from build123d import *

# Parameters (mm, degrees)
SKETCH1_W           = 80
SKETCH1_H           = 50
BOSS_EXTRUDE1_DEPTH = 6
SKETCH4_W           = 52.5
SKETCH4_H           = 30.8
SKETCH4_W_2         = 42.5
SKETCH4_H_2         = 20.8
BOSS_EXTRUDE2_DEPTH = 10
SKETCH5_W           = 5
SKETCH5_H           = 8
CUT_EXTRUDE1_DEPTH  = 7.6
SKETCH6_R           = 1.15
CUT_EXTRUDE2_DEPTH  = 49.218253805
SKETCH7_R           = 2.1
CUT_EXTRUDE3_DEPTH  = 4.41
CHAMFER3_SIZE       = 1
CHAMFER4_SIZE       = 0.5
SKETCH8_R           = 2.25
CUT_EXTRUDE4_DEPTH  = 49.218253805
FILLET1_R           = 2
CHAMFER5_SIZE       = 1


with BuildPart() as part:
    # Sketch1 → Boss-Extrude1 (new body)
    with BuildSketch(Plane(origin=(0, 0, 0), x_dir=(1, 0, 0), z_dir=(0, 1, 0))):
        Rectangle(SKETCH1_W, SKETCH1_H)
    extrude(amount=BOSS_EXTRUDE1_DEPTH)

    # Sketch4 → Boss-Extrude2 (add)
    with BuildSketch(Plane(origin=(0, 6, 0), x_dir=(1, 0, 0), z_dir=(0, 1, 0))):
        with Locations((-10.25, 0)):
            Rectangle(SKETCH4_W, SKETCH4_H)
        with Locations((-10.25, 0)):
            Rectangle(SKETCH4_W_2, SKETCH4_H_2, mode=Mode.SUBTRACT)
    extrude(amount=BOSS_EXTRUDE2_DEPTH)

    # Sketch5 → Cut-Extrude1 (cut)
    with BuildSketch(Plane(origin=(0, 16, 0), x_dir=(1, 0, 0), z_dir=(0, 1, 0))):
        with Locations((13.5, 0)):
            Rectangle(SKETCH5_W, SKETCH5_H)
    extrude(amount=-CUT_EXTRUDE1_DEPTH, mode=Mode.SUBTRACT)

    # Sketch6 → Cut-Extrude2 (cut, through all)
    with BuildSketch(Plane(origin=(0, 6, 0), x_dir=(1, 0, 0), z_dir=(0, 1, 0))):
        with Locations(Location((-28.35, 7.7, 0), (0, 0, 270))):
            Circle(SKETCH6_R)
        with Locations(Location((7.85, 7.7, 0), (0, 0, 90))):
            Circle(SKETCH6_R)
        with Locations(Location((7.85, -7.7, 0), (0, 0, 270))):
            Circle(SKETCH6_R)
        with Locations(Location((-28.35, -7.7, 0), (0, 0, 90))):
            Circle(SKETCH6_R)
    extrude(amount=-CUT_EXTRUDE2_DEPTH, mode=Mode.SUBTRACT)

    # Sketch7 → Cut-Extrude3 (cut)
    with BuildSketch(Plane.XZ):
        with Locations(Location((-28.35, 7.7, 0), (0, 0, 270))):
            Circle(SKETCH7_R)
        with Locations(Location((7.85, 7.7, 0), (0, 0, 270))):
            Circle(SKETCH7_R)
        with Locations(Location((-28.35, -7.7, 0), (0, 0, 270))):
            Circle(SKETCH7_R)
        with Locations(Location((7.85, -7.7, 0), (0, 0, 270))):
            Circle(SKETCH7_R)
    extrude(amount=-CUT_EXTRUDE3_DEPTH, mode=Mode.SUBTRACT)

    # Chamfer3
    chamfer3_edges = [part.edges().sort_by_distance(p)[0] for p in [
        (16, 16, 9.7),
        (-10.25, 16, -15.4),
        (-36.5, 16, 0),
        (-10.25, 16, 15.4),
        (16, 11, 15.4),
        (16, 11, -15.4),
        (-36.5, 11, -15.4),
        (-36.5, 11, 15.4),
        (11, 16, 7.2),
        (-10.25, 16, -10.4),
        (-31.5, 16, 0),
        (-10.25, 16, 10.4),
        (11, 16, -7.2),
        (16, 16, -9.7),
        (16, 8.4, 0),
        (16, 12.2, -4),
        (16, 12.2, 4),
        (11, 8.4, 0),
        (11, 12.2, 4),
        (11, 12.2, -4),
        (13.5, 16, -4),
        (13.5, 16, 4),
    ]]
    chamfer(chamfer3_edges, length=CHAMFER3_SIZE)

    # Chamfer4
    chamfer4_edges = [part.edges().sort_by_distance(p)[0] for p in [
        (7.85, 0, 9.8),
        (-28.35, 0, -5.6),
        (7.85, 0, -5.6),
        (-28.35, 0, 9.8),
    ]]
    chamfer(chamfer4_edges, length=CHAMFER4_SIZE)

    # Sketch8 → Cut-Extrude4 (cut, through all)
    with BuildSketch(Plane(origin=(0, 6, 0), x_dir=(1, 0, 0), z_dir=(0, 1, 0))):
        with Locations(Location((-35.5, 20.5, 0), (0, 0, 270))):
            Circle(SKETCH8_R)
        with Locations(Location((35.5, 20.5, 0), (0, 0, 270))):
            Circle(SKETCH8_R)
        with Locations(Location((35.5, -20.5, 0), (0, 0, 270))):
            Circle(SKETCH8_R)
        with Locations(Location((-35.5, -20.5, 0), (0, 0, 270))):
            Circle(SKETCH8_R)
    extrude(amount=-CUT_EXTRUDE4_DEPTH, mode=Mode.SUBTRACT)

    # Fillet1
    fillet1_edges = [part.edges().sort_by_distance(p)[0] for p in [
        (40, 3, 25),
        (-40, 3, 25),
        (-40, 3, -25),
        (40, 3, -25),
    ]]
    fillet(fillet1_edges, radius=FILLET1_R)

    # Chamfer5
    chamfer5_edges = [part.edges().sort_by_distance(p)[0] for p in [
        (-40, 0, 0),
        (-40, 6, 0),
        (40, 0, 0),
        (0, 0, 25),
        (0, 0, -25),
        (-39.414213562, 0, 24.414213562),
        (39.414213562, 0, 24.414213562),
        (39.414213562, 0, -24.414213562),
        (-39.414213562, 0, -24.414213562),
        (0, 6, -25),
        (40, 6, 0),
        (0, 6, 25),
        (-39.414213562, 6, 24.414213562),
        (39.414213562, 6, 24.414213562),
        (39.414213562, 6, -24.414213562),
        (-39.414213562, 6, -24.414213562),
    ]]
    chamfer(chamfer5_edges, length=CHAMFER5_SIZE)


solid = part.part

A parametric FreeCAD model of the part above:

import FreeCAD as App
import Part
import Sketcher

V = App.Vector
Q = App.Units.Quantity


def edges_at(feature, points):
    """Names of the edges that pass closest to the given points."""
    edges = feature.Shape.Edges
    near = lambda p: min(range(len(edges)), key=lambda i: edges[i].distToShape(Part.Vertex(*p))[0])
    return sorted({f"Edge{near(p) + 1}" for p in points})


def add_polygon(sketch, points):
    """Adds a closed chain of lines whose ends are joined by coincident constraints."""
    first, n = sketch.GeometryCount, len(points)
    for a, b in zip(points, points[1:] + points[:1]):
        sketch.addGeometry(Part.LineSegment(App.Vector(*a, 0), App.Vector(*b, 0)), False)
    for i in range(n):
        sketch.addConstraint(Sketcher.Constraint("Coincident", first + i, 2, first + (i + 1) % n, 1))

doc = App.newDocument("Part")
body = doc.addObject("PartDesign::Body", "Body")

# Sketch on XZ plane
sketch1 = body.newObject("Sketcher::SketchObject", "Sketch")
sketch1.AttachmentSupport = (doc.getObject("XZ_Plane"), [""])
sketch1.MapMode = "FlatFace"
add_polygon(sketch1, [(-40, -25), (-40, 25), (40, 25), (40, -25)])  # lines 0-3
sketch1.addConstraint([
    Sketcher.Constraint("Vertical", 0),
    Sketcher.Constraint("Horizontal", 1),
    Sketcher.Constraint("Vertical", 2),
    Sketcher.Constraint("Horizontal", 3),
    Sketcher.Constraint("Symmetric", 0, 2, 2, 2, -1, 1),
    Sketcher.Constraint("DistanceX", 1, 1, 1, 2, Q("80 mm")),
    Sketcher.Constraint("DistanceY", 0, 1, 0, 2, Q("50 mm")),
])
pad1 = body.newObject("PartDesign::Pad", "Pad")
pad1.Profile = sketch1
pad1.Length = 6
pad1.Reversed = True

# Sketch on XZ plane
sketch2 = body.newObject("Sketcher::SketchObject", "Sketch001")
sketch2.AttachmentSupport = (doc.getObject("XZ_Plane"), [""])
sketch2.MapMode = "FlatFace"
sketch2.AttachmentOffset = App.Placement(V(0, 0, -6), App.Rotation())
add_polygon(sketch2, [(-36.5, -15.4), (-36.5, 15.4), (16, 15.4), (16, -15.4)])  # lines 0-3
add_polygon(sketch2, [(11, 10.4), (-31.5, 10.4), (-31.5, -10.4), (11, -10.4)])  # lines 4-7
sketch2.addConstraint([
    Sketcher.Constraint("Vertical", 0),
    Sketcher.Constraint("Horizontal", 1),
    Sketcher.Constraint("Vertical", 2),
    Sketcher.Constraint("Horizontal", 3),
    Sketcher.Constraint("Horizontal", 4),
    Sketcher.Constraint("Vertical", 5),
    Sketcher.Constraint("Horizontal", 6),
    Sketcher.Constraint("Vertical", 7),
    Sketcher.Constraint("DistanceX", 1, 1, 1, 2, Q("52.5 mm")),
    Sketcher.Constraint("DistanceX", 4, 2, 4, 1, Q("42.5 mm")),
    Sketcher.Constraint("DistanceY", 0, 1, 0, 2, Q("30.8 mm")),
    Sketcher.Constraint("DistanceY", 5, 2, 5, 1, Q("20.8 mm")),
    Sketcher.Constraint("DistanceX", -1, 1, 1, 2, Q("16 mm")),
    Sketcher.Constraint("DistanceX", -1, 1, 6, 2, Q("11 mm")),
    Sketcher.Constraint("DistanceY", 4, 2, 0, 2, Q("5 mm")),
    Sketcher.Constraint("DistanceY", -1, 1, 0, 2, Q("15.4 mm")),
])
pad2 = body.newObject("PartDesign::Pad", "Pad001")
pad2.Profile = sketch2
pad2.Length = 10
pad2.Reversed = True

# Sketch on XZ plane
sketch3 = body.newObject("Sketcher::SketchObject", "Sketch002")
sketch3.AttachmentSupport = (doc.getObject("XZ_Plane"), [""])
sketch3.MapMode = "FlatFace"
sketch3.AttachmentOffset = App.Placement(V(0, 0, -16), App.Rotation())
add_polygon(sketch3, [(11, -4), (11, 4), (16, 4), (16, -4)])  # lines 0-3
sketch3.addConstraint([
    Sketcher.Constraint("Vertical", 0),
    Sketcher.Constraint("Horizontal", 1),
    Sketcher.Constraint("Vertical", 2),
    Sketcher.Constraint("Horizontal", 3),
    Sketcher.Constraint("DistanceX", 1, 1, 1, 2, Q("5 mm")),
    Sketcher.Constraint("DistanceY", 0, 1, 0, 2, Q("8 mm")),
    Sketcher.Constraint("DistanceX", -1, 1, 0, 2, Q("11 mm")),
    Sketcher.Constraint("DistanceY", -1, 1, 0, 2, Q("4 mm")),
])
pocket1 = body.newObject("PartDesign::Pocket", "Pocket")
pocket1.Profile = sketch3
pocket1.Length = 7.6
pocket1.Reversed = True

# Sketch on XZ plane
sketch4 = body.newObject("Sketcher::SketchObject", "Sketch003")
sketch4.AttachmentSupport = (doc.getObject("XZ_Plane"), [""])
sketch4.MapMode = "FlatFace"
sketch4.AttachmentOffset = App.Placement(V(0, 0, -6), App.Rotation())
sketch4.addGeometry([
    Part.Circle(V(-28.35, -7.7, 0), V(0, 0, 1), 1.15),
    Part.Circle(V(7.85, -7.7, 0), V(0, 0, 1), 1.15),
    Part.Circle(V(7.85, 7.7, 0), V(0, 0, 1), 1.15),
    Part.Circle(V(-28.35, 7.7, 0), V(0, 0, 1), 1.15),
], False)
sketch4.addConstraint([
    Sketcher.Constraint("Equal", 0, 1),
    Sketcher.Constraint("Equal", 1, 2),
    Sketcher.Constraint("Equal", 2, 3),
    Sketcher.Constraint("Symmetric", 1, 3, 2, 3, -1),
    Sketcher.Constraint("Symmetric", 0, 3, 3, 3, -1),
    Sketcher.Constraint("Horizontal", 0, 3, 1, 3),
    Sketcher.Constraint("Diameter", 0, Q("2.3 mm")),
    Sketcher.Constraint("DistanceY", 0, 3, -1, 1, Q("7.7 mm")),
    Sketcher.Constraint("DistanceX", 0, 3, 1, 3, Q("36.2 mm")),
    Sketcher.Constraint("DistanceX", 0, 3, -1, 1, Q("28.35 mm")),
])
pocket2 = body.newObject("PartDesign::Pocket", "Pocket001")
pocket2.Profile = sketch4
pocket2.Type = "ThroughAll"
pocket2.Reversed = True

# Sketch on XZ plane
sketch5 = body.newObject("Sketcher::SketchObject", "Sketch004")
sketch5.AttachmentSupport = (doc.getObject("XZ_Plane"), [""])
sketch5.MapMode = "FlatFace"
sketch5.addGeometry([
    Part.Circle(V(-28.35, 7.7, 0), V(0, 0, 1), 2.1),
    Part.Circle(V(7.85, 7.7, 0), V(0, 0, 1), 2.1),
    Part.Circle(V(-28.35, -7.7, 0), V(0, 0, 1), 2.1),
    Part.Circle(V(7.85, -7.7, 0), V(0, 0, 1), 2.1),
], False)
sketch5.addConstraint([
    Sketcher.Constraint("Equal", 0, 1),
    Sketcher.Constraint("Equal", 1, 2),
    Sketcher.Constraint("Equal", 2, 3),
    Sketcher.Constraint("Symmetric", 0, 3, 2, 3, -1),
    Sketcher.Constraint("Symmetric", 1, 3, 3, 3, -1),
    Sketcher.Constraint("Horizontal", 0, 3, 1, 3),
    Sketcher.Constraint("Diameter", 0, Q("4.2 mm")),
    Sketcher.Constraint("DistanceY", -1, 1, 0, 3, Q("7.7 mm")),
    Sketcher.Constraint("DistanceX", 0, 3, 1, 3, Q("36.2 mm")),
    Sketcher.Constraint("DistanceX", 0, 3, -1, 1, Q("28.35 mm")),
])
pocket3 = body.newObject("PartDesign::Pocket", "Pocket002")
pocket3.Profile = sketch5
pocket3.Length = 4.41
doc.recompute()

chamfer = body.newObject("PartDesign::Chamfer", "Chamfer")
chamfer.Base = (pocket3, edges_at(pocket3, [
    (16, 16, 9.7),
    (-10.25, 16, -15.4),
    (-36.5, 16, 0),
    (-10.25, 16, 15.4),
    (16, 11, 15.4),
    (16, 11, -15.4),
    (-36.5, 11, -15.4),
    (-36.5, 11, 15.4),
    (11, 16, 7.2),
    (-10.25, 16, -10.4),
    (-31.5, 16, 0),
    (-10.25, 16, 10.4),
    (11, 16, -7.2),
    (16, 16, -9.7),
    (16, 8.4, 0),
    (16, 12.2, -4),
    (16, 12.2, 4),
    (11, 8.4, 0),
    (11, 12.2, 4),
    (11, 12.2, -4),
    (13.5, 16, -4),
    (13.5, 16, 4),
]))
chamfer.Size = 1
doc.recompute()

chamfer2 = body.newObject("PartDesign::Chamfer", "Chamfer001")
chamfer2.Base = (chamfer, edges_at(chamfer, [
    (7.85, 0, 9.8),
    (-28.35, 0, -5.6),
    (7.85, 0, -5.6),
    (-28.35, 0, 9.8),
]))
chamfer2.Size = 0.5

# Sketch on XZ plane
sketch6 = body.newObject("Sketcher::SketchObject", "Sketch005")
sketch6.AttachmentSupport = (doc.getObject("XZ_Plane"), [""])
sketch6.MapMode = "FlatFace"
sketch6.AttachmentOffset = App.Placement(V(0, 0, -6), App.Rotation())
sketch6.addGeometry([
    Part.Circle(V(-35.5, -20.5, 0), V(0, 0, 1), 2.25),
    Part.Circle(V(35.5, -20.5, 0), V(0, 0, 1), 2.25),
    Part.Circle(V(35.5, 20.5, 0), V(0, 0, 1), 2.25),
    Part.Circle(V(-35.5, 20.5, 0), V(0, 0, 1), 2.25),
], False)
sketch6.addConstraint([
    Sketcher.Constraint("Equal", 0, 1),
    Sketcher.Constraint("Equal", 1, 2),
    Sketcher.Constraint("Equal", 2, 3),
    Sketcher.Constraint("Symmetric", 0, 3, 2, 3, -1, 1),
    Sketcher.Constraint("Symmetric", 1, 3, 3, 3, -1, 1),
    Sketcher.Constraint("Symmetric", 0, 3, 1, 3, -2),
    Sketcher.Constraint("Diameter", 0, Q("4.5 mm")),
    Sketcher.Constraint("DistanceX", 0, 3, 1, 3, Q("71 mm")),
    Sketcher.Constraint("DistanceY", 1, 3, 2, 3, Q("41 mm")),
])
pocket4 = body.newObject("PartDesign::Pocket", "Pocket003")
pocket4.Profile = sketch6
pocket4.Type = "ThroughAll"
pocket4.Reversed = True
doc.recompute()

fillet = body.newObject("PartDesign::Fillet", "Fillet")
fillet.Base = (pocket4, edges_at(pocket4, [
    (40, 3, 25),
    (-40, 3, 25),
    (-40, 3, -25),
    (40, 3, -25),
]))
fillet.Radius = 2
doc.recompute()

chamfer3 = body.newObject("PartDesign::Chamfer", "Chamfer002")
chamfer3.Base = (fillet, edges_at(fillet, [
    (-40, 0, 0),
    (-40, 6, 0),
    (40, 0, 0),
    (0, 0, 25),
    (0, 0, -25),
    (-39.414, 0, 24.414),
    (39.414, 0, 24.414),
    (39.414, 0, -24.414),
    (-39.414, 0, -24.414),
    (0, 6, -25),
    (40, 6, 0),
    (0, 6, 25),
    (-39.414, 6, 24.414),
    (39.414, 6, 24.414),
    (39.414, 6, -24.414),
    (-39.414, 6, -24.414),
]))
chamfer3.Size = 1

doc.recompute()
